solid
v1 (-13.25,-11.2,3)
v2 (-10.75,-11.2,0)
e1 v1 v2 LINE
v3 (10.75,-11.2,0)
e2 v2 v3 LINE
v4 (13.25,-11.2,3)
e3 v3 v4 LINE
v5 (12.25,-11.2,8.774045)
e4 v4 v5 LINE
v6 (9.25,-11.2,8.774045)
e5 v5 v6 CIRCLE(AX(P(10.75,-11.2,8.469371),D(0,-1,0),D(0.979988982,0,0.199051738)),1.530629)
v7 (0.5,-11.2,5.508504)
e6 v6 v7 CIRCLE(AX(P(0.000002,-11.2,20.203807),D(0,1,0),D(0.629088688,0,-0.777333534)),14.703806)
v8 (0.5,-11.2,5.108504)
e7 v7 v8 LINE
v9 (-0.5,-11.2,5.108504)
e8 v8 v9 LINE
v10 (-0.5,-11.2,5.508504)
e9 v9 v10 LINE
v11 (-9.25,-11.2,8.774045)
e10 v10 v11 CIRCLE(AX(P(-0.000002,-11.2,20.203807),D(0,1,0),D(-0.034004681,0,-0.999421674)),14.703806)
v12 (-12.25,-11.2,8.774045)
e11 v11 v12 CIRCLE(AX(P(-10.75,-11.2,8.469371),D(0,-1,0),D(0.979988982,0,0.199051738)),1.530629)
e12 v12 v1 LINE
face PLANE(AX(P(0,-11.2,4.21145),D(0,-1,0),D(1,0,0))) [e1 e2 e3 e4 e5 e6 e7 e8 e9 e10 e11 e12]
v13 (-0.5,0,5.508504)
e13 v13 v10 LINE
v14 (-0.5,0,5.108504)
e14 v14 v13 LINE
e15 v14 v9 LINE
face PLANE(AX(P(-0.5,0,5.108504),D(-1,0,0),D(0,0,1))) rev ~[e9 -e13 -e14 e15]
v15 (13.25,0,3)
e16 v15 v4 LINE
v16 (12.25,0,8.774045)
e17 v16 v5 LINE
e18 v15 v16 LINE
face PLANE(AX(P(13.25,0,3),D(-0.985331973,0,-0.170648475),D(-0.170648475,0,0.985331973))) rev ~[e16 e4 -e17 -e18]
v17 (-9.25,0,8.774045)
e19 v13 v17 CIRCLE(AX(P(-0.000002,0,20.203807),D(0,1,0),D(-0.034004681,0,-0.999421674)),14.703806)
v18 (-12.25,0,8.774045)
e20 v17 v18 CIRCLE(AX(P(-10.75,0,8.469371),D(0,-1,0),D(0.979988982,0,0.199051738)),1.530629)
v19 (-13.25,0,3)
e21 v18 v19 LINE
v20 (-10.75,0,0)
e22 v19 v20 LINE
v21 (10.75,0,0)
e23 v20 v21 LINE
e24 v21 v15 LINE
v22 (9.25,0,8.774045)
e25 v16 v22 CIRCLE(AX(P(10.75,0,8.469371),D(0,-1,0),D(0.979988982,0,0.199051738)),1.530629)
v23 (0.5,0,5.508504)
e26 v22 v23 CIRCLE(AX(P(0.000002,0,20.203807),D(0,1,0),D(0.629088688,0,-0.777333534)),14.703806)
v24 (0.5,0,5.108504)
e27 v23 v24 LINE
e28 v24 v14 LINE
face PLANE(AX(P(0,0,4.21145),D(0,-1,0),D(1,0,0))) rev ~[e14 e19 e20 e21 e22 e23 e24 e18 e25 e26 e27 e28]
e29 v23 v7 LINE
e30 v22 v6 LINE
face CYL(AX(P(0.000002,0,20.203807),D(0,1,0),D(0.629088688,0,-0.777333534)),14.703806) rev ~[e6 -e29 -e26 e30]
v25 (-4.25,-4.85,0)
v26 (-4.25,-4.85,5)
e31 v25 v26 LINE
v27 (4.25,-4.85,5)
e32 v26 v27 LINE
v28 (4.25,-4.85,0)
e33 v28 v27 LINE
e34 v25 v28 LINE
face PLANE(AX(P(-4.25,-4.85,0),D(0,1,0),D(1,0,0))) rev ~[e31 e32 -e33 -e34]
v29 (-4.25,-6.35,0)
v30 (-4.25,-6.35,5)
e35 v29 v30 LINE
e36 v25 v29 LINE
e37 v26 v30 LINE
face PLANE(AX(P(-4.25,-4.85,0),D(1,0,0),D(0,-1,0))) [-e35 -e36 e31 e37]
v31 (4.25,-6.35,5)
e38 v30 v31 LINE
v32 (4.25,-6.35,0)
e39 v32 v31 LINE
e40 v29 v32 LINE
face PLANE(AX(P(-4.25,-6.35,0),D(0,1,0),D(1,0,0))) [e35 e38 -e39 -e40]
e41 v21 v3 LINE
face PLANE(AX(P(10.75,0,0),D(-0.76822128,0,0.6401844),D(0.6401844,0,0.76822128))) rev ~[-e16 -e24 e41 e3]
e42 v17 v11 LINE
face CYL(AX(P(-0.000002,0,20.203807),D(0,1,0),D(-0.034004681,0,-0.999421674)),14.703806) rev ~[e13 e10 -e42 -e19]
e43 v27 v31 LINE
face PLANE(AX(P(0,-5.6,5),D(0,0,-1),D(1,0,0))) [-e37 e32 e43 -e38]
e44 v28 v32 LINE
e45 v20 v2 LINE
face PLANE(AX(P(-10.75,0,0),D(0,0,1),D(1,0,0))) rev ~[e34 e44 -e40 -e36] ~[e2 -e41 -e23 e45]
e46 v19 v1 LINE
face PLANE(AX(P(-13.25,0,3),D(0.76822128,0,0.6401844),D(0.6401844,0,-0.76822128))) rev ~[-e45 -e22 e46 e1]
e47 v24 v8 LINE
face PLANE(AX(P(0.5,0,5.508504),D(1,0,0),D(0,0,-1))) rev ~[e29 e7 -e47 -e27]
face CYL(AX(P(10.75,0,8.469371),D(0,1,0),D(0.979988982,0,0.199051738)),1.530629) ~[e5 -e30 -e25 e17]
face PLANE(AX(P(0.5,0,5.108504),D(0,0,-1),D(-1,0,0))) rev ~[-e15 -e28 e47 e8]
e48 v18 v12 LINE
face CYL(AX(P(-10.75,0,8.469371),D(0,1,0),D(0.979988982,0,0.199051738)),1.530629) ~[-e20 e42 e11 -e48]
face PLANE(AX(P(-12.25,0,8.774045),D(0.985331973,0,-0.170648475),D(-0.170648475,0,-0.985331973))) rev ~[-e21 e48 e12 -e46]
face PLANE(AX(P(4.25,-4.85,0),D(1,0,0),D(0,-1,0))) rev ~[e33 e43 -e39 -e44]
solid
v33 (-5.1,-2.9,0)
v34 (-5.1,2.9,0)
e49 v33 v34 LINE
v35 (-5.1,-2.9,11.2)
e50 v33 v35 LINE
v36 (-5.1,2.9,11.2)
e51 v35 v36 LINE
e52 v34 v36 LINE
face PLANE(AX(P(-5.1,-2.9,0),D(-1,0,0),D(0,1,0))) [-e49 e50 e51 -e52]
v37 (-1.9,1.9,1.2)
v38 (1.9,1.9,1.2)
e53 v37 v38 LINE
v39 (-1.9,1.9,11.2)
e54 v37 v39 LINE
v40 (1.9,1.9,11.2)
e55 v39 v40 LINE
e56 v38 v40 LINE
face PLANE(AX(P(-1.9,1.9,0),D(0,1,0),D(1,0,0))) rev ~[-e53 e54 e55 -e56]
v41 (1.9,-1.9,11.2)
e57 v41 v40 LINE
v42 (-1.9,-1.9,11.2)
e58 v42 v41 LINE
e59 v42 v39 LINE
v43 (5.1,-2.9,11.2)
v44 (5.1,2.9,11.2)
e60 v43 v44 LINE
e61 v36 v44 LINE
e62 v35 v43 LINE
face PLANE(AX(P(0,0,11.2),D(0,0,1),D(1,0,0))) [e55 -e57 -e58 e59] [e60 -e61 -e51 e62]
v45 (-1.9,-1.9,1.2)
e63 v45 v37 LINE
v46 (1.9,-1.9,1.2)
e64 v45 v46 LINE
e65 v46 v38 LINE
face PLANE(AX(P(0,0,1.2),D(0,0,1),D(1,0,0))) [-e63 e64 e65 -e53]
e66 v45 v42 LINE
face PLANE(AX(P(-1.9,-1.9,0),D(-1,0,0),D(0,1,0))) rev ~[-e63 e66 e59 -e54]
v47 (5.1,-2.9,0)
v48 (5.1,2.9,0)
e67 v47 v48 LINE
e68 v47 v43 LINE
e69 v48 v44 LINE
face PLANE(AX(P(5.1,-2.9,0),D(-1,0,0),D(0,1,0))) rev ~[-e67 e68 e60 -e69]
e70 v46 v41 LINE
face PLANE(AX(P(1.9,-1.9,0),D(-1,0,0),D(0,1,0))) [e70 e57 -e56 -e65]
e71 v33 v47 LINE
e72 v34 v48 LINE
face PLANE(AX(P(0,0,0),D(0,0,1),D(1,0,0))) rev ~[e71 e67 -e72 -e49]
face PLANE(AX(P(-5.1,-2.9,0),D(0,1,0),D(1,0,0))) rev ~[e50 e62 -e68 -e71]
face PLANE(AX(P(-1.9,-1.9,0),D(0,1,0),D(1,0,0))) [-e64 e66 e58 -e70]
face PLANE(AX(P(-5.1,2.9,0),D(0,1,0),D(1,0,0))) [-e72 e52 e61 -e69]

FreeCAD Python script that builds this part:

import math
import FreeCAD as App
import Part
import Sketcher
from FreeCAD import Vector

doc = App.newDocument("Part")
body = doc.addObject("PartDesign::Body", "Body")

sketch1 = body.newObject("Sketcher::SketchObject", "Sketch")
sketch1.AttachmentSupport = (doc.getObject("XY_Plane"), [""])
sketch1.MapMode = "FlatFace"
sketch1.addGeometry([
    Part.LineSegment(Vector(-1.9, 1.9, 0), Vector(-1.9, -1.9, 0)),
    Part.LineSegment(Vector(-1.9, -1.9, 0), Vector(1.9, -1.9, 0)),
    Part.LineSegment(Vector(1.9, -1.9, 0), Vector(1.9, 1.9, 0)),
    Part.LineSegment(Vector(1.9, 1.9, 0), Vector(-1.9, 1.9, 0)),
], False)
sketch1.addConstraint([
    Sketcher.Constraint("Coincident", 0, 2, 1, 1),
    Sketcher.Constraint("Coincident", 1, 2, 2, 1),
    Sketcher.Constraint("Coincident", 2, 2, 3, 1),
    Sketcher.Constraint("Coincident", 3, 2, 0, 1),
    Sketcher.Constraint("Vertical", 0),
    Sketcher.Constraint("Horizontal", 1),
    Sketcher.Constraint("Vertical", 2),
    Sketcher.Constraint("Horizontal", 3),
    Sketcher.Constraint("Symmetric", 0, 2, 2, 2, -1, 1),
    Sketcher.Constraint("Equal", 3, 0),
    Sketcher.Constraint("DistanceX", 1, 1, 1, 2, 3.8),
])
pad1 = body.newObject("PartDesign::Pad", "Pad")
pad1.Profile = sketch1
pad1.Length = 1.2

sketch2 = body.newObject("Sketcher::SketchObject", "Sketch001")
sketch2.AttachmentSupport = (doc.getObject("XY_Plane"), [""])
sketch2.MapMode = "FlatFace"
sketch2.addGeometry([
    Part.LineSegment(Vector(-5.1, 2.9, 0), Vector(-5.1, -2.9, 0)),
    Part.LineSegment(Vector(-5.1, -2.9, 0), Vector(5.1, -2.9, 0)),
    Part.LineSegment(Vector(5.1, -2.9, 0), Vector(5.1, 2.9, 0)),
    Part.LineSegment(Vector(5.1, 2.9, 0), Vector(-5.1, 2.9, 0)),
    Part.LineSegment(Vector(1.9, -1.9, 0), Vector(-1.9, -1.9, 0)),
    Part.LineSegment(Vector(-1.9, -1.9, 0), Vector(-1.9, 1.9, 0)),
    Part.LineSegment(Vector(-1.9, 1.9, 0), Vector(1.9, 1.9, 0)),
    Part.LineSegment(Vector(1.9, 1.9, 0), Vector(1.9, -1.9, 0)),
], False)
sketch2.addConstraint([
    Sketcher.Constraint("Coincident", 0, 2, 1, 1),
    Sketcher.Constraint("Coincident", 1, 2, 2, 1),
    Sketcher.Constraint("Coincident", 2, 2, 3, 1),
    Sketcher.Constraint("Coincident", 3, 2, 0, 1),
    Sketcher.Constraint("Coincident", 4, 2, 5, 1),
    Sketcher.Constraint("Coincident", 5, 2, 6, 1),
    Sketcher.Constraint("Coincident", 6, 2, 7, 1),
    Sketcher.Constraint("Coincident", 7, 2, 4, 1),
    Sketcher.Constraint("Vertical", 0),
    Sketcher.Constraint("Horizontal", 1),
    Sketcher.Constraint("Vertical", 2),
    Sketcher.Constraint("Horizontal", 3),
    Sketcher.Constraint("Horizontal", 4),
    Sketcher.Constraint("Vertical", 5),
    Sketcher.Constraint("Horizontal", 6),
    Sketcher.Constraint("Vertical", 7),
    Sketcher.Constraint("Symmetric", 0, 2, 2, 2, -1, 1),
    Sketcher.Constraint("Symmetric", 4, 2, 6, 2, -1, 1),
    Sketcher.Constraint("Equal", 6, 5),
    Sketcher.Constraint("DistanceX", 1, 1, 1, 2, 10.2),
    Sketcher.Constraint("DistanceX", 4, 2, 4, 1, 3.8),
    Sketcher.Constraint("DistanceY", 0, 2, 0, 1, 5.8),
])
pad2 = body.newObject("PartDesign::Pad", "Pad001")
pad2.Profile = sketch2
pad2.Length = 11.2
body2 = doc.addObject("PartDesign::Body", "Body001")

sketch3 = body2.newObject("Sketcher::SketchObject", "Sketch002")
sketch3.AttachmentSupport = (doc.getObject("XZ_Plane001"), [""])
sketch3.MapMode = "FlatFace"
sketch3.addGeometry([
    Part.LineSegment(Vector(-13.25, 3, 0), Vector(-10.75, 0, 0)),
    Part.LineSegment(Vector(-10.75, 0, 0), Vector(10.75, 0, 0)),
    Part.LineSegment(Vector(10.75, 0, 0), Vector(13.25, 3, 0)),
    Part.LineSegment(Vector(13.25, 3, 0), Vector(12.25, 8.774045, 0)),
    Part.ArcOfCircle(Part.Circle(Vector(10.75, 8.469371, 0), Vector(0, 0, 1), 1.530629), math.radians(11.481513), math.radians(168.518487)),
    Part.ArcOfCircle(Part.Circle(Vector(0.000002, 20.203807, 0), Vector(0, 0, 1), 14.703806), math.radians(-88.0513), math.radians(-51.01708)),
    Part.LineSegment(Vector(0.5, 5.508504, 0), Vector(0.5, 5.108504, 0)),
    Part.LineSegment(Vector(0.5, 5.108504, 0), Vector(-0.5, 5.108504, 0)),
    Part.LineSegment(Vector(-0.5, 5.108504, 0), Vector(-0.5, 5.508504, 0)),
    Part.ArcOfCircle(Part.Circle(Vector(-0.000002, 20.203807, 0), Vector(0, 0, 1), 14.703806), math.radians(-128.98292), math.radians(-91.9487)),
    Part.ArcOfCircle(Part.Circle(Vector(-10.75, 8.469371, 0), Vector(0, 0, 1), 1.530629), math.radians(11.481513), math.radians(168.518487)),
    Part.LineSegment(Vector(-12.25, 8.774045, 0), Vector(-13.25, 3, 0)),
], False)
sketch3.addConstraint([
    Sketcher.Constraint("Coincident", 0, 2, 1, 1),
    Sketcher.Constraint("Coincident", 1, 2, 2, 1),
    Sketcher.Constraint("Coincident", 2, 2, 3, 1),
    Sketcher.Constraint("Coincident", 3, 2, 4, 1),
    Sketcher.Constraint("Coincident", 4, 2, 5, 2),
    Sketcher.Constraint("Coincident", 5, 1, 6, 1),
    Sketcher.Constraint("Coincident", 6, 2, 7, 1),
    Sketcher.Constraint("Coincident", 7, 2, 8, 1),
    Sketcher.Constraint("Coincident", 8, 2, 9, 2),
    Sketcher.Constraint("Coincident", 9, 1, 10, 1),
    Sketcher.Constraint("Coincident", 10, 2, 11, 1),
    Sketcher.Constraint("Coincident", 11, 2, 0, 1),
    Sketcher.Constraint("Horizontal", 1),
    Sketcher.Constraint("Vertical", 6),
    Sketcher.Constraint("Horizontal", 7),
    Sketcher.Constraint("Vertical", 8),
    Sketcher.Constraint("Coincident", 9, 3, 5, 3),
    Sketcher.Constraint("Equal", 5, 9),
    Sketcher.Constraint("Equal", 4, 10),
    Sketcher.Constraint("Symmetric", 0, 2, 1, 2, -1, 1),
    Sketcher.Constraint("Symmetric", 4, 3, 10, 3, -2),
    Sketcher.Constraint("Symmetric", 5, 1, 8, 2, -2),
    Sketcher.Constraint("Symmetric", 2, 2, 11, 2, -2),
    Sketcher.Constraint("Horizontal", 3, 2, 4, 2),
    Sketcher.Constraint("Horizontal", 9, 1, 10, 2),
    Sketcher.Constraint("Vertical", 10, 3, 0, 2),
    Sketcher.Constraint("DistanceX", 7, 2, 7, 1, 1.0),
    Sketcher.Constraint("DistanceX", 1, 1, 1, 2, 21.5),
    Sketcher.Constraint("DistanceY", 6, 2, 6, 1, 0.4),
    Sketcher.Constraint("DistanceY", -1, 1, 2, 2, 3.0),
    Sketcher.Constraint("DistanceX", 0, 2, 2, 2, 24.0),
    Sketcher.Constraint("DistanceX", 3, 2, 2, 2, 1.0),
    Sketcher.Constraint("Distance", 3, 5.86),
    Sketcher.Constraint("Radius", 4, 1.530629),
    Sketcher.Constraint("Radius", 5, 14.703806),
])
pad3 = body2.newObject("PartDesign::Pad", "Pad002")
pad3.Profile = sketch3
pad3.Length = 11.2

sketch4 = body2.newObject("Sketcher::SketchObject", "Sketch003")
sketch4.AttachmentSupport = (doc.getObject("XY_Plane001"), [""])
sketch4.MapMode = "FlatFace"
sketch4.addGeometry([
    Part.LineSegment(Vector(-4.25, -6.35, 0), Vector(-4.25, -4.85, 0)),
    Part.LineSegment(Vector(-4.25, -4.85, 0), Vector(4.25, -4.85, 0)),
    Part.LineSegment(Vector(4.25, -4.85, 0), Vector(4.25, -6.35, 0)),
    Part.LineSegment(Vector(4.25, -6.35, 0), Vector(-4.25, -6.35, 0)),
], False)
sketch4.addConstraint([
    Sketcher.Constraint("Coincident", 0, 2, 1, 1),
    Sketcher.Constraint("Coincident", 1, 2, 2, 1),
    Sketcher.Constraint("Coincident", 2, 2, 3, 1),
    Sketcher.Constraint("Coincident", 3, 2, 0, 1),
    Sketcher.Constraint("Vertical", 0),
    Sketcher.Constraint("Horizontal", 1),
    Sketcher.Constraint("Vertical", 2),
    Sketcher.Constraint("Horizontal", 3),
    Sketcher.Constraint("DistanceX", 1, 1, 1, 2, 8.5),
    Sketcher.Constraint("DistanceY", 0, 1, 0, 2, 1.5),
    Sketcher.Constraint("DistanceX", 0, 2, -1, 1, 4.25),
    Sketcher.Constraint("DistanceY", 0, 2, -1, 1, 4.85),
])
pocket1 = body2.newObject("PartDesign::Pocket", "Pocket")
pocket1.Profile = sketch4
pocket1.Length = 5
pocket1.Reversed = True

doc.recompute()
